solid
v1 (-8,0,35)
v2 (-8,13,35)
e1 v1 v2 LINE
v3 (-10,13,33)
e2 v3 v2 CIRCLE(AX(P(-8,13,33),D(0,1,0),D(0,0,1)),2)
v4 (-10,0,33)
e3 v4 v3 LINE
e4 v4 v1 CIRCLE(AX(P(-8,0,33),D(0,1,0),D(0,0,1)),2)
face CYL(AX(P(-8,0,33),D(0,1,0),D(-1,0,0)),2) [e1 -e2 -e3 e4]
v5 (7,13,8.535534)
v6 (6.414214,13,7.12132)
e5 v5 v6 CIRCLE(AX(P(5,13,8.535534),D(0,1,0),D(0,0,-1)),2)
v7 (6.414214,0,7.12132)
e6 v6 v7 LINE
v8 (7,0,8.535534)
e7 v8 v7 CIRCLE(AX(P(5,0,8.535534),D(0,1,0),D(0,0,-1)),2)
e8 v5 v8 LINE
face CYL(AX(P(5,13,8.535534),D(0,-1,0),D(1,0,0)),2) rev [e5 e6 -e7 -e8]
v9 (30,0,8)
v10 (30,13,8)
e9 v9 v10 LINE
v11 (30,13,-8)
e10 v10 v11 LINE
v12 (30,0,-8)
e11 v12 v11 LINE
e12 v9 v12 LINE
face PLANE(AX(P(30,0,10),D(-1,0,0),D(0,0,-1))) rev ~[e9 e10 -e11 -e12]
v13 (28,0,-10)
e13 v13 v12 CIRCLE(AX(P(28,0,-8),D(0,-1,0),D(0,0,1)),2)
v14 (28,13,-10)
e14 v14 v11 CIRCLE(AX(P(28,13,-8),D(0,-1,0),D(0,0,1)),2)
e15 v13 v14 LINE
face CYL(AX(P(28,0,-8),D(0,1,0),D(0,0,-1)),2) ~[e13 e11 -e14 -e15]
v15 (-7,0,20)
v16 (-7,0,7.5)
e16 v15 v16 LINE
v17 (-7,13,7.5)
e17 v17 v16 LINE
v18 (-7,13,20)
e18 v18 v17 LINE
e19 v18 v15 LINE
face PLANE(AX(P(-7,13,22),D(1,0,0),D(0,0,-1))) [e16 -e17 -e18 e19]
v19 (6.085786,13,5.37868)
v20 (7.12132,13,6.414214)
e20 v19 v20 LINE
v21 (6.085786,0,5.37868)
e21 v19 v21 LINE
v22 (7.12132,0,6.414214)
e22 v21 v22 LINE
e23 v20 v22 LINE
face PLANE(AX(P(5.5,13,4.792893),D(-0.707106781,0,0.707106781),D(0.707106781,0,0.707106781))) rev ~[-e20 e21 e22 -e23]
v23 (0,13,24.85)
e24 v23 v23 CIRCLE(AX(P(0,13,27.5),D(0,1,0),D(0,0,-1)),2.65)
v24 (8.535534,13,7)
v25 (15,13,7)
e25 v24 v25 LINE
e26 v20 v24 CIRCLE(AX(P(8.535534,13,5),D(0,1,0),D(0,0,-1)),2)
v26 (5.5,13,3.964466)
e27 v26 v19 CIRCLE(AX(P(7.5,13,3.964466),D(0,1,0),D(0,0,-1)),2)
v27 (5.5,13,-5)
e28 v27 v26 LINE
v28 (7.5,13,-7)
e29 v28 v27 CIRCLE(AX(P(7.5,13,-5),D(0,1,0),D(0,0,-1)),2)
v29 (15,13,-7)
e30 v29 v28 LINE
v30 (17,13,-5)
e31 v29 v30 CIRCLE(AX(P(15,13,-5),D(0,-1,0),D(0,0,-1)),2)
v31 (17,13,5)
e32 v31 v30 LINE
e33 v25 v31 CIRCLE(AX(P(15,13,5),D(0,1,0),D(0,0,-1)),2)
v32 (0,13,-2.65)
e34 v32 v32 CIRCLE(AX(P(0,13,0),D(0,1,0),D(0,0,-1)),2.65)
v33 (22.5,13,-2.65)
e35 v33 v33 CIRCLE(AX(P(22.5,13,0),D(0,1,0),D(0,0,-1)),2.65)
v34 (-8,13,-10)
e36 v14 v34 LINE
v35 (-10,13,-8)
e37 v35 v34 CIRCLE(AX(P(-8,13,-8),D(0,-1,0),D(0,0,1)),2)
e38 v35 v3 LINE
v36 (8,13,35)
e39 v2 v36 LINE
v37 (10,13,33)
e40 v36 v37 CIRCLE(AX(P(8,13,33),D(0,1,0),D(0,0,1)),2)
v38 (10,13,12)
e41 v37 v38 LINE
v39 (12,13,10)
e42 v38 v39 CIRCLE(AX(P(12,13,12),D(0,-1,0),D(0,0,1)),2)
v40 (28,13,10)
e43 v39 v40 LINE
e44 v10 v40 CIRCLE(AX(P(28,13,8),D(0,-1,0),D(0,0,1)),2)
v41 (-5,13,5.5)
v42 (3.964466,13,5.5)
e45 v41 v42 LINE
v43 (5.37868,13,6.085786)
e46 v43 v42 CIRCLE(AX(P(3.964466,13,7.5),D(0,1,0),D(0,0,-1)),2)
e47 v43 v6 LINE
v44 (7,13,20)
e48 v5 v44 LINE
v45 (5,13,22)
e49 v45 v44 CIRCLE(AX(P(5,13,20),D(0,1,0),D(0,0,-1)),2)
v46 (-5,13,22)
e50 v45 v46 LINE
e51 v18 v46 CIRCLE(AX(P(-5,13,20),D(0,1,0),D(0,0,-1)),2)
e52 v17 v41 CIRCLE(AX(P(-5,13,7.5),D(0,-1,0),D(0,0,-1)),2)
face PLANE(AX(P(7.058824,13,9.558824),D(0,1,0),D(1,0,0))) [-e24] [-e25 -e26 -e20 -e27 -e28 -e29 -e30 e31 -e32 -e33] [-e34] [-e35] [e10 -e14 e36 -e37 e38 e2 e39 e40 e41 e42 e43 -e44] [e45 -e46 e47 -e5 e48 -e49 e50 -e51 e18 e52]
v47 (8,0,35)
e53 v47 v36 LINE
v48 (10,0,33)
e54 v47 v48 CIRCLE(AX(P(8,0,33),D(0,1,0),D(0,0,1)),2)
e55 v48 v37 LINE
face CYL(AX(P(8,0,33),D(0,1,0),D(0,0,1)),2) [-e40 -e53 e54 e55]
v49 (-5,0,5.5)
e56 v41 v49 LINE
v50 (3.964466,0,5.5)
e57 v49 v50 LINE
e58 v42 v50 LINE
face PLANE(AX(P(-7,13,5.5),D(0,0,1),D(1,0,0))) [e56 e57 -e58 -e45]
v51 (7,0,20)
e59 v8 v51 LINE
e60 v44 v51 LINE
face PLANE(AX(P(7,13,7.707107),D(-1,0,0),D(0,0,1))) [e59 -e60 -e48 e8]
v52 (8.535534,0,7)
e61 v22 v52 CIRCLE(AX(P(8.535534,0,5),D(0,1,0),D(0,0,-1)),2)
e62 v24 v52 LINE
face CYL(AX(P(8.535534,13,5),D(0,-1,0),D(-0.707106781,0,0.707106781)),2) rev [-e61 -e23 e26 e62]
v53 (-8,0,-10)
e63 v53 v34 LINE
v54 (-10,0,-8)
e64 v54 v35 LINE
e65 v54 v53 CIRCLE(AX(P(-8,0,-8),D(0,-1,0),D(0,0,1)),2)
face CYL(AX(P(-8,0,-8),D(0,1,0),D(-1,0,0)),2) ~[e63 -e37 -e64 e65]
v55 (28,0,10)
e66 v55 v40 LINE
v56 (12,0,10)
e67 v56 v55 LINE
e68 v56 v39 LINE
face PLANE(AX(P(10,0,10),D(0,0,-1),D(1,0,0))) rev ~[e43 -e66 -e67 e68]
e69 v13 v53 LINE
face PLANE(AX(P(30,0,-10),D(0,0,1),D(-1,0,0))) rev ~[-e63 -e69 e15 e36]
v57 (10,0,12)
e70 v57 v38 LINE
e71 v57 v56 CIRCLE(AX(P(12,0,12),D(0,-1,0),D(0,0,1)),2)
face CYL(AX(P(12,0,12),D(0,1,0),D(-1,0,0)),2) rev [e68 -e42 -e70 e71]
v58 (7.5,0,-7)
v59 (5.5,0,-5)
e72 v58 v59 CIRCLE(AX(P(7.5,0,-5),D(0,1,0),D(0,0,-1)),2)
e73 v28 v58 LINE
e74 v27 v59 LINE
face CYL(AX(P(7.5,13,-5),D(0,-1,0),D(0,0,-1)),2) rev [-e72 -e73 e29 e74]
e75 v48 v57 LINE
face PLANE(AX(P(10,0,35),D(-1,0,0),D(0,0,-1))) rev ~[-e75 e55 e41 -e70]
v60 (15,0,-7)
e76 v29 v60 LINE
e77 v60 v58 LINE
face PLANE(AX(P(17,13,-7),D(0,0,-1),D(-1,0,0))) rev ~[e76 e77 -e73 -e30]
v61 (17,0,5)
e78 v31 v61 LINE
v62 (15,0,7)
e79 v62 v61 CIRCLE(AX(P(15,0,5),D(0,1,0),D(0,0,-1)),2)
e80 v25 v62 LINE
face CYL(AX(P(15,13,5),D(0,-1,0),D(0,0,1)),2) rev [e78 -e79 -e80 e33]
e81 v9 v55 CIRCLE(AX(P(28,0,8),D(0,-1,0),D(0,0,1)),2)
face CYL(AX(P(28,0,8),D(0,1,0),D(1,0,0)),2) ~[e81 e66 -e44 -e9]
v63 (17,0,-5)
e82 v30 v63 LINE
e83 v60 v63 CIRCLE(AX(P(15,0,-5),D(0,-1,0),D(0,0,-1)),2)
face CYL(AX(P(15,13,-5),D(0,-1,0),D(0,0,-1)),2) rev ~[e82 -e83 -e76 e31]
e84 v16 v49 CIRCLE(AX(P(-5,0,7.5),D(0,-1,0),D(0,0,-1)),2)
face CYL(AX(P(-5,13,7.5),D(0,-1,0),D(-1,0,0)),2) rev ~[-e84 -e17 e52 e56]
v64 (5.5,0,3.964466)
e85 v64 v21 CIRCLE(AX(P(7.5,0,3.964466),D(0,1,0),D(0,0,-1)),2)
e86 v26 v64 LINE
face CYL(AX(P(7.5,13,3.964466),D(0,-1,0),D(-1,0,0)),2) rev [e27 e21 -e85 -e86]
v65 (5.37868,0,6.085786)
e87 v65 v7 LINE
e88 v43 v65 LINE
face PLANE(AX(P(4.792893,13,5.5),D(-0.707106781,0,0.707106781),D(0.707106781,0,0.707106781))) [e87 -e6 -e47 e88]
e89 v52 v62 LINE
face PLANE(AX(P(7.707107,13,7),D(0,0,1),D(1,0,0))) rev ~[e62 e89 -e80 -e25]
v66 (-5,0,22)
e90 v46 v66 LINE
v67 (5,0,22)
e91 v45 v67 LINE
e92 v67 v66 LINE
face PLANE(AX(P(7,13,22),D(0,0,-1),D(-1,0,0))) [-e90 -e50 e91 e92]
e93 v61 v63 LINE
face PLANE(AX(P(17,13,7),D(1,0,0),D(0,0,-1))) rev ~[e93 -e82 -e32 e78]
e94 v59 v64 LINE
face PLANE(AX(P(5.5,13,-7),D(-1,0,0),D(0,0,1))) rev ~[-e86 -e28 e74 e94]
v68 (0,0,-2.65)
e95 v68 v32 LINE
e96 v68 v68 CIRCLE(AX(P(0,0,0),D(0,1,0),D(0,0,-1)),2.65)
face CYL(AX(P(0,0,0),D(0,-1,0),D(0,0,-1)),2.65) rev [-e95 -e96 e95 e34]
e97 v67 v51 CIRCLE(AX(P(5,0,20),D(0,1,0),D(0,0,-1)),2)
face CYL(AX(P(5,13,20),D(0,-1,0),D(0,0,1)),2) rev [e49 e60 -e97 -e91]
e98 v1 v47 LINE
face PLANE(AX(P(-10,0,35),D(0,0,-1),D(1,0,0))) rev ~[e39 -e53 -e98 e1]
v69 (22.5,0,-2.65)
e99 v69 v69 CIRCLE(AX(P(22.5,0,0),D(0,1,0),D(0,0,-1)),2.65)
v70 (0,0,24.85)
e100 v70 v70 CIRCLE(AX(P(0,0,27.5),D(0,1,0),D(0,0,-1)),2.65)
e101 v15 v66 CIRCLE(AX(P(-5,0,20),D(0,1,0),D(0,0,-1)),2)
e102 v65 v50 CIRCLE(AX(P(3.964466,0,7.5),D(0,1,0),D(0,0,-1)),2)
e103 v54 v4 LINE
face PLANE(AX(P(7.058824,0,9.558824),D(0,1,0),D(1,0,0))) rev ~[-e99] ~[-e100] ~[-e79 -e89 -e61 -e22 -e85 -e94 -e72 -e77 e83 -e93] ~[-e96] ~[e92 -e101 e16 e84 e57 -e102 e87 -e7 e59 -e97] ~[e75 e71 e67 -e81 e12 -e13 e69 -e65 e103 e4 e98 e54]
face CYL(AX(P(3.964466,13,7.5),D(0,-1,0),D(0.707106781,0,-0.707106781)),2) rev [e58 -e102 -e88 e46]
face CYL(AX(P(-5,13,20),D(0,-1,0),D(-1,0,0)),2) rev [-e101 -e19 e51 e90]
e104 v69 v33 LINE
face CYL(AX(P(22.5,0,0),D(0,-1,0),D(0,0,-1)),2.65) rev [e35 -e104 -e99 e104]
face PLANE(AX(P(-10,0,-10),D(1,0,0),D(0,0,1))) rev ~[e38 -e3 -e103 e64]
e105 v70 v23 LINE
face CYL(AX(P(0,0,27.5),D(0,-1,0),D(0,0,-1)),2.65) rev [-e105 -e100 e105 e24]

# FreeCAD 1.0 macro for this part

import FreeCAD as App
import Part
import Sketcher

V = App.Vector


def edges_at(feature, points):
    """Names of the edges that pass closest to the given points."""
    edges = feature.Shape.Edges
    near = lambda p: min(range(len(edges)), key=lambda i: edges[i].distToShape(Part.Vertex(*p))[0])
    return sorted({f"Edge{near(p) + 1}" for p in points})


def add_polygon(sketch, points):
    """Adds a closed chain of lines whose ends are joined by coincident constraints."""
    first, n = sketch.GeometryCount, len(points)
    for a, b in zip(points, points[1:] + points[:1]):
        sketch.addGeometry(Part.LineSegment(App.Vector(*a, 0), App.Vector(*b, 0)), False)
    for i in range(n):
        sketch.addConstraint(Sketcher.Constraint("Coincident", first + i, 2, first + (i + 1) % n, 1))

doc = App.newDocument("Part")
body = doc.addObject("PartDesign::Body", "Body")

sketch1 = body.newObject("Sketcher::SketchObject", "Sketch")
sketch1.AttachmentSupport = (doc.getObject("XZ_Plane"), [""])
sketch1.MapMode = "FlatFace"
add_polygon(sketch1, [(-10, -10), (-10, 35), (10, 35), (10, 10), (30, 10), (30, -10)])
sketch1.addGeometry(Part.Circle(V(0, 27.5, 0), V(0, 0, 1), 2.6), False)
sketch1.addGeometry(Part.Circle(V(0, 0, 0), V(0, 0, 1), 2.6), False)
sketch1.addGeometry(Part.Circle(V(22.5, 0, 0), V(0, 0, 1), 2.6), False)
sketch1.addConstraint([
    Sketcher.Constraint("Vertical", 0),
    Sketcher.Constraint("Horizontal", 1),
    Sketcher.Constraint("Vertical", 2),
    Sketcher.Constraint("Horizontal", 3),
    Sketcher.Constraint("Vertical", 4),
    Sketcher.Constraint("Horizontal", 5),
    Sketcher.Constraint("Coincident", 7, 3, -1, 1),
    Sketcher.Constraint("Equal", 6, 7),
    Sketcher.Constraint("Equal", 7, 8),
    Sketcher.Constraint("Symmetric", 2, 2, 5, 2, -1, 1),
    Sketcher.Constraint("PointOnObject", 6, 3, -2),
    Sketcher.Constraint("PointOnObject", 8, 3, -1),
    Sketcher.Constraint("Equal", 1, 3),
    Sketcher.Constraint("Equal", 3, 4),
    Sketcher.Constraint("Diameter", 6, 5.3),
    Sketcher.Constraint("DistanceX", 1, 1, 1, 2, 20.0),
    Sketcher.Constraint("DistanceY", 0, 1, 0, 2, 45.0),
    Sketcher.Constraint("DistanceY", -1, 1, 6, 3, 27.5),
    Sketcher.Constraint("DistanceX", -1, 1, 8, 3, 22.5),
])
pad1 = body.newObject("PartDesign::Pad", "Pad")
pad1.Profile = sketch1
pad1.Length = 13
pad1.Reversed = True

sketch2 = body.newObject("Sketcher::SketchObject", "Sketch001")
sketch2.AttachmentSupport = (doc.getObject("XZ_Plane"), [""])
sketch2.MapMode = "FlatFace"
sketch2.AttachmentOffset = App.Placement(V(0, 0, -13), App.Rotation())
add_polygon(sketch2, [(4.8, 5.5), (-7, 5.5), (-7, 22), (7, 22), (7, 7.7)])
add_polygon(sketch2, [(17, -7), (5.5, -7), (5.5, 4.8), (7.7, 7), (17, 7)])
sketch2.addConstraint([
    Sketcher.Constraint("Horizontal", 0),
    Sketcher.Constraint("Vertical", 1),
    Sketcher.Constraint("Horizontal", 2),
    Sketcher.Constraint("Vertical", 3),
    Sketcher.Constraint("Horizontal", 5),
    Sketcher.Constraint("Vertical", 6),
    Sketcher.Constraint("Horizontal", 8),
    Sketcher.Constraint("Vertical", 9),
    Sketcher.Constraint("Parallel", 4, 7),
    Sketcher.Constraint("Equal", 0, 6),
    Sketcher.Constraint("Equal", 2, 9),
    Sketcher.Constraint("Equal", 4, 7),
    Sketcher.Constraint("DistanceX", 2, 1, 2, 2, 14.0),
    Sketcher.Constraint("DistanceX", 5, 2, 5, 1, 11.5),
    Sketcher.Constraint("DistanceY", 1, 1, 1, 2, 16.5),
    Sketcher.Constraint("DistanceX", 0, 2, -1, 1, 7.0),
    Sketcher.Constraint("DistanceY", -1, 1, 1, 2, 22.0),
    Sketcher.Constraint("DistanceY", 5, 2, -1, 1, 7.0),
    Sketcher.Constraint("DistanceX", -1, 1, 8, 2, 17.0),
    Sketcher.Constraint("Distance", 4, 3.12132),
])
pocket1 = body.newObject("PartDesign::Pocket", "Pocket")
pocket1.Profile = sketch2
pocket1.Type = "ThroughAll"
pocket1.Reversed = True
doc.recompute()

fillet = body.newObject("PartDesign::Fillet", "Fillet")
fillet.Base = (pocket1, edges_at(pocket1, [
    (30, 6.5, -10),
    (30, 6.5, 10),
    (10, 6.5, 10),
    (10, 6.5, 35),
    (-10, 6.5, 35),
    (-10, 6.5, -10),
    (7.707, 6.5, 7),
    (5.5, 6.5, 4.793),
    (5.5, 6.5, -7),
    (17, 6.5, -7),
    (17, 6.5, 7),
    (-7, 6.5, 22),
    (-7, 6.5, 5.5),
    (4.793, 6.5, 5.5),
    (7, 6.5, 7.707),
    (7, 6.5, 22),
]))
fillet.Radius = 2

doc.recompute()
